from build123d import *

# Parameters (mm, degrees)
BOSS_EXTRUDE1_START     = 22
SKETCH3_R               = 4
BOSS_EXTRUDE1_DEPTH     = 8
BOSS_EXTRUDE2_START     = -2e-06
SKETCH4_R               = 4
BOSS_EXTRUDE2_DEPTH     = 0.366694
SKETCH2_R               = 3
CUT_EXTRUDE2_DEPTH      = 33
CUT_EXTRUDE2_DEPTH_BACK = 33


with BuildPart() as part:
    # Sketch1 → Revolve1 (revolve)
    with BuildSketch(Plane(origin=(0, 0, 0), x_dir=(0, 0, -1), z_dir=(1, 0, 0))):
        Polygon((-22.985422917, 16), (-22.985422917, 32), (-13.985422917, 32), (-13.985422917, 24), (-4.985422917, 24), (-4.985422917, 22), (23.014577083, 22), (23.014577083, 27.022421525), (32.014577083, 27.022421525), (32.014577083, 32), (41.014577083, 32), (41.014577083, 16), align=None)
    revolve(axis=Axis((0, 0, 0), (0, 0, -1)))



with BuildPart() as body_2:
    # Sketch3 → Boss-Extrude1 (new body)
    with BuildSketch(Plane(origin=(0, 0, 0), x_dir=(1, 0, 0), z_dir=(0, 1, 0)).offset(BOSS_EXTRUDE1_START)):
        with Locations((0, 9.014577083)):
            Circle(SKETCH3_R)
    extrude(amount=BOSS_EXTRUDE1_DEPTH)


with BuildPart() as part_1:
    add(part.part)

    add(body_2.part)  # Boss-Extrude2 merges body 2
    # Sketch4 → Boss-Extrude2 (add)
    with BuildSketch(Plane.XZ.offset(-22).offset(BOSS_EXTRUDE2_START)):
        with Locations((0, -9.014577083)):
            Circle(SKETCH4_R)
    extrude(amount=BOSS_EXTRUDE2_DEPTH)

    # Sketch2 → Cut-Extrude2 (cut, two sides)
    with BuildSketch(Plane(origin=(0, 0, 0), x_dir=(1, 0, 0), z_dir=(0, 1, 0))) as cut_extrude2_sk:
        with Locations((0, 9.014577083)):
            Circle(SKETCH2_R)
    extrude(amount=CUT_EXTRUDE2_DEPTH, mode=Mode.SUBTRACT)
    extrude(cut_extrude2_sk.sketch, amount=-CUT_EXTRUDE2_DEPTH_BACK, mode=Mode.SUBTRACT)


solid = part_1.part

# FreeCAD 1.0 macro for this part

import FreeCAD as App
import Part
import Sketcher

doc = App.newDocument("Part")
params = doc.addObject("Spreadsheet::Sheet", "Params")
for row, (alias, value) in enumerate([
    ("sketch1_width", "16 mm"),
    ("sketch1_width2", "2 mm"),
    ("sketch1_width3", "8 mm"),
    ("sketch1_height", "64 mm"),
    ("sketch1_height2", "9 mm"),
    ("revolution_angle", "360 deg"),
    ("sketch2_diameter", "8 mm"),
    ("pad1_length", "8 mm"),
    ("sketch3_diameter", "8 mm"),
    ("pad2_length", "0.366694 mm"),
    ("sketch4_diameter", "6 mm"),
], start=1):
    params.set(f"A{row}", alias)
    params.set(f"B{row}", "=" + value)
    params.setAlias(f"B{row}", alias)

body = doc.addObject("PartDesign::Body", "Body")

sketch1 = body.newObject("Sketcher::SketchObject", "Sketch")
sketch1.AttachmentSupport = (doc.getObject("YZ_Plane"), [""])
sketch1.MapMode = "FlatFace"
sketch1.addGeometry(Part.LineSegment(App.Vector(32, 22.985423, 0), App.Vector(16, 22.985423, 0)), False)
sketch1.addGeometry(Part.LineSegment(App.Vector(16, 22.985423, 0), App.Vector(16, -41.014577, 0)), False)
sketch1.addGeometry(Part.LineSegment(App.Vector(16, -41.014577, 0), App.Vector(32, -41.014577, 0)), False)
sketch1.addGeometry(Part.LineSegment(App.Vector(32, -41.014577, 0), App.Vector(32, -32.014577, 0)), False)
sketch1.addGeometry(Part.LineSegment(App.Vector(32, -32.014577, 0), App.Vector(27.022422, -32.014577, 0)), False)
sketch1.addGeometry(Part.LineSegment(App.Vector(27.022422, -32.014577, 0), App.Vector(27.022422, -23.014577, 0)), False)
sketch1.addGeometry(Part.LineSegment(App.Vector(27.022422, -23.014577, 0), App.Vector(22, -23.014577, 0)), False)
sketch1.addGeometry(Part.LineSegment(App.Vector(22, -23.014577, 0), App.Vector(22, 4.985423, 0)), False)
sketch1.addGeometry(Part.LineSegment(App.Vector(22, 4.985423, 0), App.Vector(24, 4.985423, 0)), False)
sketch1.addGeometry(Part.LineSegment(App.Vector(24, 4.985423, 0), App.Vector(24, 13.985423, 0)), False)
sketch1.addGeometry(Part.LineSegment(App.Vector(24, 13.985423, 0), App.Vector(32, 13.985423, 0)), False)
sketch1.addGeometry(Part.LineSegment(App.Vector(32, 13.985423, 0), App.Vector(32, 22.985423, 0)), False)
sketch1.addConstraint(Sketcher.Constraint("Coincident", 0, 2, 1, 1))
sketch1.addConstraint(Sketcher.Constraint("Coincident", 1, 2, 2, 1))
sketch1.addConstraint(Sketcher.Constraint("Coincident", 2, 2, 3, 1))
sketch1.addConstraint(Sketcher.Constraint("Coincident", 3, 2, 4, 1))
sketch1.addConstraint(Sketcher.Constraint("Coincident", 4, 2, 5, 1))
sketch1.addConstraint(Sketcher.Constraint("Coincident", 5, 2, 6, 1))
sketch1.addConstraint(Sketcher.Constraint("Coincident", 6, 2, 7, 1))
sketch1.addConstraint(Sketcher.Constraint("Coincident", 7, 2, 8, 1))
sketch1.addConstraint(Sketcher.Constraint("Coincident", 8, 2, 9, 1))
sketch1.addConstraint(Sketcher.Constraint("Coincident", 9, 2, 10, 1))
sketch1.addConstraint(Sketcher.Constraint("Coincident", 10, 2, 11, 1))
sketch1.addConstraint(Sketcher.Constraint("Coincident", 11, 2, 0, 1))
sketch1.addConstraint(Sketcher.Constraint("Horizontal", 0))
sketch1.addConstraint(Sketcher.Constraint("Vertical", 1))
sketch1.addConstraint(Sketcher.Constraint("Horizontal", 2))
sketch1.addConstraint(Sketcher.Constraint("Vertical", 3))
sketch1.addConstraint(Sketcher.Constraint("Horizontal", 4))
sketch1.addConstraint(Sketcher.Constraint("Vertical", 5))
sketch1.addConstraint(Sketcher.Constraint("Horizontal", 6))
sketch1.addConstraint(Sketcher.Constraint("Vertical", 7))
sketch1.addConstraint(Sketcher.Constraint("Horizontal", 8))
sketch1.addConstraint(Sketcher.Constraint("Vertical", 9))
sketch1.addConstraint(Sketcher.Constraint("Horizontal", 10))
sketch1.addConstraint(Sketcher.Constraint("Vertical", 11))
sketch1.addConstraint(Sketcher.Constraint("Vertical", 3, 2, 10, 2))
sketch1.addConstraint(Sketcher.Constraint("Equal", 3, 5))
sketch1.addConstraint(Sketcher.Constraint("Equal", 5, 9))
sketch1.addConstraint(Sketcher.Constraint("Equal", 9, 11))
sketch1.addConstraint(Sketcher.Constraint("DistanceX", 0, 2, 0, 1, 16.0))
sketch1.addConstraint(Sketcher.Constraint("DistanceX", 8, 1, 8, 2, 2.0))
sketch1.addConstraint(Sketcher.Constraint("DistanceX", 10, 1, 10, 2, 8.0))
sketch1.addConstraint(Sketcher.Constraint("DistanceY", 1, 2, 1, 1, 64.0))
sketch1.addConstraint(Sketcher.Constraint("DistanceY", 3, 1, 3, 2, 9.0))
sketch1.addConstraint(Sketcher.Constraint("DistanceX", -1, 1, 0, 2, 16.0))
sketch1.addConstraint(Sketcher.Constraint("DistanceX", 4, 2, 4, 1, 4.977578))
sketch1.addConstraint(Sketcher.Constraint("DistanceY", -1, 1, 0, 2, 22.985423))
sketch1.setExpression("Constraints[28]", "Params.sketch1_width")
sketch1.setExpression("Constraints[29]", "Params.sketch1_width2")
sketch1.setExpression("Constraints[30]", "Params.sketch1_width3")
sketch1.setExpression("Constraints[31]", "Params.sketch1_height")
sketch1.setExpression("Constraints[32]", "Params.sketch1_height2")
revolution = body.newObject("PartDesign::Revolution", "Revolution")
revolution.Profile = sketch1
revolution.ReferenceAxis = (sketch1, ["V_Axis"])
revolution.setExpression("Angle", "Params.revolution_angle")
body2 = doc.addObject("PartDesign::Body", "Body001")

sketch2 = body2.newObject("Sketcher::SketchObject", "Sketch001")
sketch2.AttachmentSupport = (doc.getObject("XZ_Plane001"), [""])
sketch2.MapMode = "FlatFace"
sketch2.AttachmentOffset = App.Placement(App.Vector(0, 0, -22), App.Rotation())
sketch2.addGeometry(Part.Circle(App.Vector(0, -9.014577, 0), App.Vector(0, 0, 1), 4), False)
sketch2.addConstraint(Sketcher.Constraint("PointOnObject", 0, 3, -2))
sketch2.addConstraint(Sketcher.Constraint("Diameter", 0, 8.0))
sketch2.addConstraint(Sketcher.Constraint("DistanceY", 0, 3, -1, 1, 9.014577))
sketch2.setExpression("Constraints[1]", "Params.sketch2_diameter")
pad1 = body2.newObject("PartDesign::Pad", "Pad")
pad1.Profile = sketch2
pad1.setExpression("Length", "Params.pad1_length")
pad1.Reversed = True
body.AllowCompound = True
doc.recompute()

boolean = body.newObject("PartDesign::Boolean", "Boolean")
boolean.Type = "Fuse"
boolean.addObjects([body2])

sketch3 = body.newObject("Sketcher::SketchObject", "Sketch002")
sketch3.AttachmentSupport = (doc.getObject("XZ_Plane"), [""])
sketch3.MapMode = "FlatFace"
sketch3.AttachmentOffset = App.Placement(App.Vector(0, 0, -22.000002), App.Rotation())
sketch3.addGeometry(Part.Circle(App.Vector(0, -9.014577, 0), App.Vector(0, 0, 1), 4), False)
sketch3.addConstraint(Sketcher.Constraint("PointOnObject", 0, 3, -2))
sketch3.addConstraint(Sketcher.Constraint("Diameter", 0, 8.0))
sketch3.addConstraint(Sketcher.Constraint("DistanceY", 0, 3, -1, 1, 9.014577))
sketch3.setExpression("Constraints[1]", "Params.sketch3_diameter")
pad2 = body.newObject("PartDesign::Pad", "Pad001")
pad2.Profile = sketch3
pad2.setExpression("Length", "Params.pad2_length")

sketch4 = body.newObject("Sketcher::SketchObject", "Sketch003")
sketch4.AttachmentSupport = (doc.getObject("XZ_Plane"), [""])
sketch4.MapMode = "FlatFace"
sketch4.addGeometry(Part.Circle(App.Vector(0, -9.014577, 0), App.Vector(0, 0, 1), 3), False)
sketch4.addConstraint(Sketcher.Constraint("PointOnObject", 0, 3, -2))
sketch4.addConstraint(Sketcher.Constraint("Diameter", 0, 6.0))
sketch4.addConstraint(Sketcher.Constraint("DistanceY", 0, 3, -1, 1, 9.014577))
sketch4.setExpression("Constraints[1]", "Params.sketch4_diameter")
pocket1 = body.newObject("PartDesign::Pocket", "Pocket")
pocket1.Profile = sketch4
pocket1.Type = "ThroughAll"
pocket1.Midplane = True

doc.recompute()
